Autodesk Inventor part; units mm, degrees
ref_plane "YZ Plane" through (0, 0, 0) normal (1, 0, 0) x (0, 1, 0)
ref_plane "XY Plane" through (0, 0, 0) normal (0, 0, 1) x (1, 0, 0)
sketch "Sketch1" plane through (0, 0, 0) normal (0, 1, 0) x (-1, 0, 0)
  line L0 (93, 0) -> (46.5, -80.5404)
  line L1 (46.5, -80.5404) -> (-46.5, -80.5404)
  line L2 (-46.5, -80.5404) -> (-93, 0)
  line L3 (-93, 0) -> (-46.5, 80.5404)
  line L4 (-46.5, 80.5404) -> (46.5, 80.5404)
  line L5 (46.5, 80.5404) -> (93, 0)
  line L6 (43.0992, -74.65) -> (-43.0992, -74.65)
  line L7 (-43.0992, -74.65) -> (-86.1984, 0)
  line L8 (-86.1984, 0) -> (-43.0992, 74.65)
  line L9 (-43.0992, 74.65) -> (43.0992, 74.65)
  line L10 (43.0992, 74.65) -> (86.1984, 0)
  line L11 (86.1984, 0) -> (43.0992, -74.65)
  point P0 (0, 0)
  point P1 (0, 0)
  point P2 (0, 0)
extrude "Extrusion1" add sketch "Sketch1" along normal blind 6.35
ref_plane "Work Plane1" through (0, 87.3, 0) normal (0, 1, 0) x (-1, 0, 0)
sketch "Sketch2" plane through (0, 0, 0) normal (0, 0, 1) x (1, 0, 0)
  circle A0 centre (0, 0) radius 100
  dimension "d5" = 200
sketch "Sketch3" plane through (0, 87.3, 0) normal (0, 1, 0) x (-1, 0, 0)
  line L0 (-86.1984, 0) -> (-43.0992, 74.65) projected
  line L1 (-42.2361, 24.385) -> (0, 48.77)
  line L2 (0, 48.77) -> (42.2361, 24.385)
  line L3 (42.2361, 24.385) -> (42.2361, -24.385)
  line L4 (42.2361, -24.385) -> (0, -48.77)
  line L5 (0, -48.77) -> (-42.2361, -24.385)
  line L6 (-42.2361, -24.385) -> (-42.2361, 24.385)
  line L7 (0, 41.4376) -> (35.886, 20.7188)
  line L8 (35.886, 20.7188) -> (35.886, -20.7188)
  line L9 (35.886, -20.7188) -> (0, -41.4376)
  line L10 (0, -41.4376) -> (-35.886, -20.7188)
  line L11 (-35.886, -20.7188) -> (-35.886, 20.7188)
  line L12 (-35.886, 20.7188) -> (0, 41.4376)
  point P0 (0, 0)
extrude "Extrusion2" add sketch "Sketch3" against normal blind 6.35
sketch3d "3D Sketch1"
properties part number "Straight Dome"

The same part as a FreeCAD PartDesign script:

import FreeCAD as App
import Part
import Sketcher
from FreeCAD import Vector
Q = App.Units.Quantity

doc = App.newDocument("Part")
body = doc.addObject("PartDesign::Body", "Body")
body.AllowCompound = True

# Sketch on XZ plane
sketch1 = doc.addObject("Sketcher::SketchObject", "Sketch")
body.addObject(sketch1)
sketch1.AttachmentSupport = (doc.XZ_Plane, [""])
sketch1.MapMode = "FlatFace"
sketch1.addGeometry(Part.LineSegment(Vector(-46, -81, 0), Vector(-93, 0, 0)), False)
sketch1.addGeometry(Part.LineSegment(Vector(-93, 0, 0), Vector(-46, 81, 0)), False)
sketch1.addGeometry(Part.LineSegment(Vector(-46, 81, 0), Vector(46, 81, 0)), False)
sketch1.addGeometry(Part.LineSegment(Vector(46, 81, 0), Vector(93, 0, 0)), False)
sketch1.addGeometry(Part.LineSegment(Vector(93, 0, 0), Vector(46, -81, 0)), False)
sketch1.addGeometry(Part.LineSegment(Vector(46, -81, 0), Vector(-46, -81, 0)), False)
sketch1.addGeometry(Part.LineSegment(Vector(-86, 0, 0), Vector(-43, -75, 0)), False)
sketch1.addGeometry(Part.LineSegment(Vector(-43, -75, 0), Vector(43, -75, 0)), False)
sketch1.addGeometry(Part.LineSegment(Vector(43, -75, 0), Vector(86, 0, 0)), False)
sketch1.addGeometry(Part.LineSegment(Vector(86, 0, 0), Vector(43, 75, 0)), False)
sketch1.addGeometry(Part.LineSegment(Vector(43, 75, 0), Vector(-43, 75, 0)), False)
sketch1.addGeometry(Part.LineSegment(Vector(-43, 75, 0), Vector(-86, 0, 0)), False)
sketch1.addConstraint(Sketcher.Constraint("Coincident", 0, 2, 1, 1))
sketch1.addConstraint(Sketcher.Constraint("Coincident", 1, 2, 2, 1))
sketch1.addConstraint(Sketcher.Constraint("Coincident", 2, 2, 3, 1))
sketch1.addConstraint(Sketcher.Constraint("Coincident", 3, 2, 4, 1))
sketch1.addConstraint(Sketcher.Constraint("Coincident", 4, 2, 5, 1))
sketch1.addConstraint(Sketcher.Constraint("Coincident", 5, 2, 0, 1))
sketch1.addConstraint(Sketcher.Constraint("Coincident", 6, 2, 7, 1))
sketch1.addConstraint(Sketcher.Constraint("Coincident", 7, 2, 8, 1))
sketch1.addConstraint(Sketcher.Constraint("Coincident", 8, 2, 9, 1))
sketch1.addConstraint(Sketcher.Constraint("Coincident", 9, 2, 10, 1))
sketch1.addConstraint(Sketcher.Constraint("Coincident", 10, 2, 11, 1))
sketch1.addConstraint(Sketcher.Constraint("Coincident", 11, 2, 6, 1))
sketch1.addConstraint(Sketcher.Constraint("Horizontal", 2))
sketch1.addConstraint(Sketcher.Constraint("Horizontal", 5))
sketch1.addConstraint(Sketcher.Constraint("Horizontal", 7))
sketch1.addConstraint(Sketcher.Constraint("Horizontal", 10))
sketch1.addConstraint(Sketcher.Constraint("Symmetric", 0, 2, 3, 2, -1, 1))
sketch1.addConstraint(Sketcher.Constraint("Symmetric", 1, 2, 4, 2, -1, 1))
sketch1.addConstraint(Sketcher.Constraint("Symmetric", 6, 2, 9, 2, -1, 1))
sketch1.addConstraint(Sketcher.Constraint("Symmetric", 8, 2, 11, 2, -1, 1))
sketch1.addConstraint(Sketcher.Constraint("PointOnObject", 0, 2, -1))
sketch1.addConstraint(Sketcher.Constraint("PointOnObject", 8, 2, -1))
sketch1.addConstraint(Sketcher.Constraint("Parallel", 0, 3))
sketch1.addConstraint(Sketcher.Constraint("Parallel", 3, 6))
sketch1.addConstraint(Sketcher.Constraint("Parallel", 4, 8))
sketch1.addConstraint(Sketcher.Constraint("Parallel", 8, 11))
sketch1.addConstraint(Sketcher.Constraint("Vertical", 2, 2, 4, 2))
sketch1.addConstraint(Sketcher.Constraint("DistanceX", 2, 1, 2, 2, 93.0))
sketch1.addConstraint(Sketcher.Constraint("Angle", 0, Q("120 deg")))
sketch1.addConstraint(Sketcher.Constraint("Distance", 0, 93.0))
sketch1.addConstraint(Sketcher.Constraint("DistanceY", 7, 2, 9, 2, 149.3))
sketch1.addConstraint(Sketcher.Constraint("DistanceX", 7, 1, 7, 2, 86.1984))
pad1 = doc.addObject("PartDesign::Pad", "Pad")
body.addObject(pad1)
pad1.Profile = sketch1
pad1.Length = 6.35
pad1.Reversed = True

# Sketch on XZ plane
sketch2 = doc.addObject("Sketcher::SketchObject", "Sketch001")
body.addObject(sketch2)
sketch2.AttachmentSupport = (doc.XZ_Plane, [""])
sketch2.MapMode = "FlatFace"
sketch2.AttachmentOffset = App.Placement(Vector(0, 0, -87.3), App.Rotation())
sketch2.addGeometry(Part.LineSegment(Vector(0, 49, 0), Vector(42, 24, 0)), False)
sketch2.addGeometry(Part.LineSegment(Vector(42, 24, 0), Vector(42, -24, 0)), False)
sketch2.addGeometry(Part.LineSegment(Vector(42, -24, 0), Vector(0, -49, 0)), False)
sketch2.addGeometry(Part.LineSegment(Vector(0, -49, 0), Vector(-42, -24, 0)), False)
sketch2.addGeometry(Part.LineSegment(Vector(-42, -24, 0), Vector(-42, 24, 0)), False)
sketch2.addGeometry(Part.LineSegment(Vector(-42, 24, 0), Vector(0, 49, 0)), False)
sketch2.addGeometry(Part.LineSegment(Vector(36, 21, 0), Vector(0, 41, 0)), False)
sketch2.addGeometry(Part.LineSegment(Vector(0, 41, 0), Vector(-36, 21, 0)), False)
sketch2.addGeometry(Part.LineSegment(Vector(-36, 21, 0), Vector(-36, -21, 0)), False)
sketch2.addGeometry(Part.LineSegment(Vector(-36, -21, 0), Vector(0, -41, 0)), False)
sketch2.addGeometry(Part.LineSegment(Vector(0, -41, 0), Vector(36, -21, 0)), False)
sketch2.addGeometry(Part.LineSegment(Vector(36, -21, 0), Vector(36, 21, 0)), False)
sketch2.addConstraint(Sketcher.Constraint("Coincident", 0, 2, 1, 1))
sketch2.addConstraint(Sketcher.Constraint("Coincident", 1, 2, 2, 1))
sketch2.addConstraint(Sketcher.Constraint("Coincident", 2, 2, 3, 1))
sketch2.addConstraint(Sketcher.Constraint("Coincident", 3, 2, 4, 1))
sketch2.addConstraint(Sketcher.Constraint("Coincident", 4, 2, 5, 1))
sketch2.addConstraint(Sketcher.Constraint("Coincident", 5, 2, 0, 1))
sketch2.addConstraint(Sketcher.Constraint("Coincident", 6, 2, 7, 1))
sketch2.addConstraint(Sketcher.Constraint("Coincident", 7, 2, 8, 1))
sketch2.addConstraint(Sketcher.Constraint("Coincident", 8, 2, 9, 1))
sketch2.addConstraint(Sketcher.Constraint("Coincident", 9, 2, 10, 1))
sketch2.addConstraint(Sketcher.Constraint("Coincident", 10, 2, 11, 1))
sketch2.addConstraint(Sketcher.Constraint("Coincident", 11, 2, 6, 1))
sketch2.addConstraint(Sketcher.Constraint("Vertical", 1))
sketch2.addConstraint(Sketcher.Constraint("Vertical", 4))
sketch2.addConstraint(Sketcher.Constraint("Vertical", 8))
sketch2.addConstraint(Sketcher.Constraint("Vertical", 11))
sketch2.addConstraint(Sketcher.Constraint("Symmetric", 0, 2, 3, 2, -1, 1))
sketch2.addConstraint(Sketcher.Constraint("Symmetric", 2, 2, 5, 2, -1, 1))
sketch2.addConstraint(Sketcher.Constraint("Symmetric", 6, 2, 9, 2, -1, 1))
sketch2.addConstraint(Sketcher.Constraint("Symmetric", 7, 2, 10, 2, -1, 1))
sketch2.addConstraint(Sketcher.Constraint("PointOnObject", 2, 2, -2))
sketch2.addConstraint(Sketcher.Constraint("PointOnObject", 6, 2, -2))
sketch2.addConstraint(Sketcher.Constraint("Parallel", 2, 5))
sketch2.addConstraint(Sketcher.Constraint("Parallel", 3, 6))
sketch2.addConstraint(Sketcher.Constraint("Parallel", 5, 7))
sketch2.addConstraint(Sketcher.Constraint("Parallel", 6, 9))
sketch2.addConstraint(Sketcher.Constraint("Horizontal", 1, 2, 3, 2))
sketch2.addConstraint(Sketcher.Constraint("Angle", 0, Q("-30 deg")))
sketch2.addConstraint(Sketcher.Constraint("DistanceY", 1, 2, 1, 1, 48.77))
sketch2.addConstraint(Sketcher.Constraint("Distance", 0, 48.77))
sketch2.addConstraint(Sketcher.Constraint("DistanceX", 4, 2, 7, 2, 6.35))
sketch2.addConstraint(Sketcher.Constraint("DistanceY", 8, 2, 8, 1, 41.4376))
pad2 = doc.addObject("PartDesign::Pad", "Pad001")
body.addObject(pad2)
pad2.Profile = sketch2
pad2.Length = 6.35

doc.recompute()
